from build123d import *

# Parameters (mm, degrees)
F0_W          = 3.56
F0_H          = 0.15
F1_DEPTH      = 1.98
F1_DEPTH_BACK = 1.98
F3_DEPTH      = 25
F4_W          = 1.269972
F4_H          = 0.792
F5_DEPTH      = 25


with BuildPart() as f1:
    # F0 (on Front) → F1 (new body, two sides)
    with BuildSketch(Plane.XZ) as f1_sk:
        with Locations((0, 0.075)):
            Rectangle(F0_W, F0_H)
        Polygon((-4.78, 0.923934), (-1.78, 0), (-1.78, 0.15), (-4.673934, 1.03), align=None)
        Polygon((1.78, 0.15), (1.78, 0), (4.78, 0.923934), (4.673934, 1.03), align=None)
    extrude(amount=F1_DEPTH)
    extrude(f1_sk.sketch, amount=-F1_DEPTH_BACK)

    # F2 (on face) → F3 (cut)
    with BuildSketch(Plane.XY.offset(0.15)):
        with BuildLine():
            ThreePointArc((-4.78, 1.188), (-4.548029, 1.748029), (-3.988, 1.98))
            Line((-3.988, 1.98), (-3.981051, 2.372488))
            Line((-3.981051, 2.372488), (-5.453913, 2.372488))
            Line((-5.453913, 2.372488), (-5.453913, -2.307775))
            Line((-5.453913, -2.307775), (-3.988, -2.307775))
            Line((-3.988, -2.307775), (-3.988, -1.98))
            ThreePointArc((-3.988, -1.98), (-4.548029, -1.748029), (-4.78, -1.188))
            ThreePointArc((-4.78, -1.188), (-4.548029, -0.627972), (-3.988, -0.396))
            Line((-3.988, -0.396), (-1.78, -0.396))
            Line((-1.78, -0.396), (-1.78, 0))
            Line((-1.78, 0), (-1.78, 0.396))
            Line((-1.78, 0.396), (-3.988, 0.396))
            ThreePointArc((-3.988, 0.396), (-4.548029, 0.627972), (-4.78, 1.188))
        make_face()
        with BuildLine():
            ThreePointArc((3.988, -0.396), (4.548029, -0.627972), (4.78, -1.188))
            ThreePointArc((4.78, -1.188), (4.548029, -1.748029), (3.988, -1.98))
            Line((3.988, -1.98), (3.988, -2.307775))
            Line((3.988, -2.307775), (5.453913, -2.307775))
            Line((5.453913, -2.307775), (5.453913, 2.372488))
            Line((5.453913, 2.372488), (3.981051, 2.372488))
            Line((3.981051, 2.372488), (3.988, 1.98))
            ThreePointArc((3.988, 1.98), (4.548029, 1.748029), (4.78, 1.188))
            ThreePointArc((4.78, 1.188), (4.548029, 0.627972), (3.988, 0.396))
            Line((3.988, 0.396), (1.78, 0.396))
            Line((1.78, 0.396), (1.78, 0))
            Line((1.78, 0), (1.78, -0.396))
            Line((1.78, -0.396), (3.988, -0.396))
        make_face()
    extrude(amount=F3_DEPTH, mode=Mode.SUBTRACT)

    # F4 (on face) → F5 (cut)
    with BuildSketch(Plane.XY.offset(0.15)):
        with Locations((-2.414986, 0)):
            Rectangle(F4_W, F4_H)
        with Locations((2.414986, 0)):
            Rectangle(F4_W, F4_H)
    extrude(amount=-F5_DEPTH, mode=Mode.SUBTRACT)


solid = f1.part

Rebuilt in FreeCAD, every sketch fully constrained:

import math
import FreeCAD as App
import Part
import Sketcher

V = App.Vector

doc = App.newDocument("Part")
params = doc.addObject("Spreadsheet::Sheet", "Params")
for row, (alias, value) in enumerate([
    ("sketch1_width", "3.56 mm"),
    ("sketch1_length", "0.15 mm"),
    ("pad1_length", "1.98 mm"),
    ("pad1_length2", "1.98 mm"),
    ("pocket1_length", "25 mm"),
    ("pocket2_length", "25 mm"),
], start=1):
    params.set(f"A{row}", alias)
    params.set(f"B{row}", "=" + value)
    params.setAlias(f"B{row}", alias)

body = doc.addObject("PartDesign::Body", "Body")

# Sketch on XZ plane
sketch1 = body.newObject("Sketcher::SketchObject", "Sketch")
sketch1.AttachmentSupport = (doc.getObject("XZ_Plane"), [""])
sketch1.MapMode = "FlatFace"
sketch1.addGeometry(Part.LineSegment(V(-1.78, 0, 0), V(1.78, 0, 0)), False)
sketch1.addGeometry(Part.LineSegment(V(1.78, 0, 0), V(4.78, 0.92, 0)), False)
sketch1.addGeometry(Part.LineSegment(V(4.78, 0.92, 0), V(4.67, 1.03, 0)), False)
sketch1.addGeometry(Part.LineSegment(V(4.67, 1.03, 0), V(1.78, 0.15, 0)), False)
sketch1.addGeometry(Part.LineSegment(V(1.78, 0.15, 0), V(-1.78, 0.15, 0)), False)
sketch1.addGeometry(Part.LineSegment(V(-1.78, 0.15, 0), V(-4.67, 1.03, 0)), False)
sketch1.addGeometry(Part.LineSegment(V(-4.67, 1.03, 0), V(-4.78, 0.92, 0)), False)
sketch1.addGeometry(Part.LineSegment(V(-4.78, 0.92, 0), V(-1.78, 0, 0)), False)
sketch1.addConstraint(Sketcher.Constraint("Coincident", 0, 2, 1, 1))
sketch1.addConstraint(Sketcher.Constraint("Coincident", 1, 2, 2, 1))
sketch1.addConstraint(Sketcher.Constraint("Coincident", 2, 2, 3, 1))
sketch1.addConstraint(Sketcher.Constraint("Coincident", 3, 2, 4, 1))
sketch1.addConstraint(Sketcher.Constraint("Coincident", 4, 2, 5, 1))
sketch1.addConstraint(Sketcher.Constraint("Coincident", 5, 2, 6, 1))
sketch1.addConstraint(Sketcher.Constraint("Coincident", 6, 2, 7, 1))
sketch1.addConstraint(Sketcher.Constraint("Coincident", 7, 2, 0, 1))
sketch1.addConstraint(Sketcher.Constraint("Horizontal", 0))
sketch1.addConstraint(Sketcher.Constraint("Horizontal", 4))
sketch1.addConstraint(Sketcher.Constraint("Symmetric", 0, 2, 7, 2, -1, 1))
sketch1.addConstraint(Sketcher.Constraint("Symmetric", 2, 2, 5, 2, -2))
sketch1.addConstraint(Sketcher.Constraint("Symmetric", 1, 2, 6, 2, -2))
sketch1.addConstraint(Sketcher.Constraint("Perpendicular", 2, 6))
sketch1.addConstraint(Sketcher.Constraint("Vertical", 0, 2, 3, 2))
sketch1.addConstraint(Sketcher.Constraint("Vertical", 4, 2, 7, 2))
sketch1.addConstraint(Sketcher.Constraint("DistanceX", 0, 2, 1, 2, 3.0))
sketch1.addConstraint(Sketcher.Constraint("DistanceX", 0, 1, 0, 2, 3.56))
sketch1.addConstraint(Sketcher.Constraint("Distance", 2, 0.15))
sketch1.addConstraint(Sketcher.Constraint("DistanceY", -1, 1, 2, 2, 1.03))
sketch1.addConstraint(Sketcher.Constraint("DistanceY", -1, 1, 3, 2, 0.15))
sketch1.setExpression("Constraints[17]", "Params.sketch1_width")
sketch1.setExpression("Constraints[18]", "Params.sketch1_length")
pad1 = body.newObject("PartDesign::Pad", "Pad")
pad1.Profile = sketch1
pad1.Type = "TwoLengths"
pad1.setExpression("Length", "Params.pad1_length")
pad1.setExpression("Length2", "Params.pad1_length2")

# Sketch on XY plane
sketch2 = body.newObject("Sketcher::SketchObject", "Sketch001")
sketch2.AttachmentSupport = (doc.getObject("XY_Plane"), [""])
sketch2.MapMode = "FlatFace"
sketch2.AttachmentOffset = App.Placement(V(0, 0, 0.15), App.Rotation())
sketch2.addGeometry(Part.ArcOfCircle(Part.Circle(V(-3.99, 1.19, 0), V(0, 0, 1), 0.79), math.radians(90), math.radians(180)), False)
sketch2.addGeometry(Part.LineSegment(V(-3.99, 1.98, 0), V(-3.98, 2.37, 0)), False)
sketch2.addGeometry(Part.LineSegment(V(-3.98, 2.37, 0), V(-5.45, 2.37, 0)), False)
sketch2.addGeometry(Part.LineSegment(V(-5.45, 2.37, 0), V(-5.45, -2.31, 0)), False)
sketch2.addGeometry(Part.LineSegment(V(-5.45, -2.31, 0), V(-3.99, -2.31, 0)), False)
sketch2.addGeometry(Part.LineSegment(V(-3.99, -2.31, 0), V(-3.99, -1.98, 0)), False)
sketch2.addGeometry(Part.ArcOfCircle(Part.Circle(V(-3.99, -1.19, 0), V(0, 0, 1), 0.79), math.radians(180), math.radians(270)), False)
sketch2.addGeometry(Part.ArcOfCircle(Part.Circle(V(-3.99, -1.19, 0), V(0, 0, 1), 0.79), math.radians(90), math.radians(180)), False)
sketch2.addGeometry(Part.LineSegment(V(-3.99, -0.4, 0), V(-1.78, -0.4, 0)), False)
sketch2.addGeometry(Part.LineSegment(V(-1.78, -0.4, 0), V(-1.78, 0.4, 0)), False)
sketch2.addGeometry(Part.LineSegment(V(-1.78, 0.4, 0), V(-3.99, 0.4, 0)), False)
sketch2.addGeometry(Part.ArcOfCircle(Part.Circle(V(-3.99, 1.19, 0), V(0, 0, 1), 0.79), math.radians(-180), math.radians(-90)), False)
sketch2.addGeometry(Part.ArcOfCircle(Part.Circle(V(3.99, -1.19, 0), V(0, 0, 1), 0.79), math.radians(0), math.radians(90)), False)
sketch2.addGeometry(Part.ArcOfCircle(Part.Circle(V(3.99, -1.19, 0), V(0, 0, 1), 0.79), math.radians(-90), math.radians(0)), False)
sketch2.addGeometry(Part.LineSegment(V(3.99, -1.98, 0), V(3.99, -2.31, 0)), False)
sketch2.addGeometry(Part.LineSegment(V(3.99, -2.31, 0), V(5.45, -2.31, 0)), False)
sketch2.addGeometry(Part.LineSegment(V(5.45, -2.31, 0), V(5.45, 2.37, 0)), False)
sketch2.addGeometry(Part.LineSegment(V(5.45, 2.37, 0), V(3.98, 2.37, 0)), False)
sketch2.addGeometry(Part.LineSegment(V(3.98, 2.37, 0), V(3.99, 1.98, 0)), False)
sketch2.addGeometry(Part.ArcOfCircle(Part.Circle(V(3.99, 1.19, 0), V(0, 0, 1), 0.79), math.radians(0), math.radians(90)), False)
sketch2.addGeometry(Part.ArcOfCircle(Part.Circle(V(3.99, 1.19, 0), V(0, 0, 1), 0.79), math.radians(-90), math.radians(0)), False)
sketch2.addGeometry(Part.LineSegment(V(3.99, 0.4, 0), V(1.78, 0.4, 0)), False)
sketch2.addGeometry(Part.LineSegment(V(1.78, 0.4, 0), V(1.78, -0.4, 0)), False)
sketch2.addGeometry(Part.LineSegment(V(1.78, -0.4, 0), V(3.99, -0.4, 0)), False)
sketch2.addConstraint(Sketcher.Constraint("Coincident", 0, 1, 1, 1))
sketch2.addConstraint(Sketcher.Constraint("Coincident", 1, 2, 2, 1))
sketch2.addConstraint(Sketcher.Constraint("Coincident", 2, 2, 3, 1))
sketch2.addConstraint(Sketcher.Constraint("Coincident", 3, 2, 4, 1))
sketch2.addConstraint(Sketcher.Constraint("Coincident", 4, 2, 5, 1))
sketch2.addConstraint(Sketcher.Constraint("Coincident", 5, 2, 6, 2))
sketch2.addConstraint(Sketcher.Constraint("Tangent", 6, 1, 7, 2))
sketch2.addConstraint(Sketcher.Constraint("Tangent", 7, 1, 8, 1))
sketch2.addConstraint(Sketcher.Constraint("Coincident", 8, 2, 9, 1))
sketch2.addConstraint(Sketcher.Constraint("Coincident", 9, 2, 10, 1))
sketch2.addConstraint(Sketcher.Constraint("Tangent", 10, 2, 11, 2))
sketch2.addConstraint(Sketcher.Constraint("Tangent", 11, 1, 0, 2))
sketch2.addConstraint(Sketcher.Constraint("Tangent", 12, 1, 13, 2))
sketch2.addConstraint(Sketcher.Constraint("Coincident", 13, 1, 14, 1))
sketch2.addConstraint(Sketcher.Constraint("Coincident", 14, 2, 15, 1))
sketch2.addConstraint(Sketcher.Constraint("Coincident", 15, 2, 16, 1))
sketch2.addConstraint(Sketcher.Constraint("Coincident", 16, 2, 17, 1))
sketch2.addConstraint(Sketcher.Constraint("Coincident", 17, 2, 18, 1))
sketch2.addConstraint(Sketcher.Constraint("Coincident", 18, 2, 19, 2))
sketch2.addConstraint(Sketcher.Constraint("Tangent", 19, 1, 20, 2))
sketch2.addConstraint(Sketcher.Constraint("Tangent", 20, 1, 21, 1))
sketch2.addConstraint(Sketcher.Constraint("Coincident", 21, 2, 22, 1))
sketch2.addConstraint(Sketcher.Constraint("Coincident", 22, 2, 23, 1))
sketch2.addConstraint(Sketcher.Constraint("Tangent", 23, 2, 12, 2))
sketch2.addConstraint(Sketcher.Constraint("Horizontal", 2))
sketch2.addConstraint(Sketcher.Constraint("Vertical", 3))
sketch2.addConstraint(Sketcher.Constraint("Horizontal", 4))
sketch2.addConstraint(Sketcher.Constraint("Vertical", 5))
sketch2.addConstraint(Sketcher.Constraint("Horizontal", 8))
sketch2.addConstraint(Sketcher.Constraint("Vertical", 9))
sketch2.addConstraint(Sketcher.Constraint("Horizontal", 10))
sketch2.addConstraint(Sketcher.Constraint("Vertical", 14))
sketch2.addConstraint(Sketcher.Constraint("Horizontal", 15))
sketch2.addConstraint(Sketcher.Constraint("Vertical", 16))
sketch2.addConstraint(Sketcher.Constraint("Horizontal", 17))
sketch2.addConstraint(Sketcher.Constraint("Horizontal", 21))
sketch2.addConstraint(Sketcher.Constraint("Vertical", 22))
sketch2.addConstraint(Sketcher.Constraint("Horizontal", 23))
sketch2.addConstraint(Sketcher.Constraint("Equal", 0, 6))
sketch2.addConstraint(Sketcher.Constraint("Equal", 6, 7))
sketch2.addConstraint(Sketcher.Constraint("Equal", 7, 11))
sketch2.addConstraint(Sketcher.Constraint("Equal", 11, 12))
sketch2.addConstraint(Sketcher.Constraint("Equal", 12, 13))
sketch2.addConstraint(Sketcher.Constraint("Equal", 13, 19))
sketch2.addConstraint(Sketcher.Constraint("Equal", 19, 20))
sketch2.addConstraint(Sketcher.Constraint("Symmetric", 0, 3, 12, 3, -1, 1))
sketch2.addConstraint(Sketcher.Constraint("Symmetric", 6, 3, 19, 3, -1, 1))
sketch2.addConstraint(Sketcher.Constraint("Symmetric", 6, 3, 12, 3, -2))
sketch2.addConstraint(Sketcher.Constraint("Symmetric", 4, 2, 14, 2, -2))
sketch2.addConstraint(Sketcher.Constraint("Symmetric", 2, 2, 16, 2, -2))
sketch2.addConstraint(Sketcher.Constraint("Horizontal", 13, 3, 6, 1))
sketch2.addConstraint(Sketcher.Constraint("Horizontal", 20, 3, 11, 1))
sketch2.addConstraint(Sketcher.Constraint("Horizontal", 6, 1, 12, 1))
sketch2.addConstraint(Sketcher.Constraint("Horizontal", 11, 1, 19, 1))
sketch2.addConstraint(Sketcher.Constraint("Vertical", 11, 3, 0, 1))
sketch2.addConstraint(Sketcher.Constraint("Vertical", 0, 1, 4, 2))
sketch2.addConstraint(Sketcher.Constraint("Vertical", 14, 2, 18, 2))
sketch2.addConstraint(Sketcher.Constraint("Equal", 2, 17))
sketch2.addConstraint(Sketcher.Constraint("Equal", 10, 21))
sketch2.addConstraint(Sketcher.Constraint("Radius", 0, 0.791999))
sketch2.addConstraint(Sketcher.Constraint("DistanceX", 8, 1, 8, 2, 2.208))
sketch2.addConstraint(Sketcher.Constraint("DistanceY", 9, 1, 9, 2, 0.792))
sketch2.addConstraint(Sketcher.Constraint("DistanceX", 6, 1, -1, 1, 4.78))
sketch2.addConstraint(Sketcher.Constraint("Distance", 1, 0.39255))
sketch2.addConstraint(Sketcher.Constraint("DistanceX", 2, 2, 2, 1, 1.472862))
sketch2.addConstraint(Sketcher.Constraint("DistanceX", 4, 1, 4, 2, 1.465913))
sketch2.addConstraint(Sketcher.Constraint("DistanceY", 3, 2, 3, 1, 4.680263))
pocket1 = body.newObject("PartDesign::Pocket", "Pocket")
pocket1.Profile = sketch2
pocket1.setExpression("Length", "Params.pocket1_length")
pocket1.Reversed = True

# Sketch on XY plane
sketch3 = body.newObject("Sketcher::SketchObject", "Sketch002")
sketch3.AttachmentSupport = (doc.getObject("XY_Plane"), [""])
sketch3.MapMode = "FlatFace"
sketch3.AttachmentOffset = App.Placement(V(0, 0, 0.15), App.Rotation())
sketch3.addGeometry(Part.LineSegment(V(-3, 0.4, 0), V(-3, -0.4, 0)), False)
sketch3.addGeometry(Part.LineSegment(V(-3, -0.4, 0), V(-1.8, -0.4, 0)), False)
sketch3.addGeometry(Part.LineSegment(V(-1.8, -0.4, 0), V(-1.8, 0.4, 0)), False)
sketch3.addGeometry(Part.LineSegment(V(-1.8, 0.4, 0), V(-3, 0.4, 0)), False)
sketch3.addGeometry(Part.LineSegment(V(1.8, 0.4, 0), V(1.8, -0.4, 0)), False)
sketch3.addGeometry(Part.LineSegment(V(1.8, -0.4, 0), V(3, -0.4, 0)), False)
sketch3.addGeometry(Part.LineSegment(V(3, -0.4, 0), V(3, 0.4, 0)), False)
sketch3.addGeometry(Part.LineSegment(V(3, 0.4, 0), V(1.8, 0.4, 0)), False)
sketch3.addConstraint(Sketcher.Constraint("Coincident", 0, 2, 1, 1))
sketch3.addConstraint(Sketcher.Constraint("Coincident", 1, 2, 2, 1))
sketch3.addConstraint(Sketcher.Constraint("Coincident", 2, 2, 3, 1))
sketch3.addConstraint(Sketcher.Constraint("Coincident", 3, 2, 0, 1))
sketch3.addConstraint(Sketcher.Constraint("Coincident", 4, 2, 5, 1))
sketch3.addConstraint(Sketcher.Constraint("Coincident", 5, 2, 6, 1))
sketch3.addConstraint(Sketcher.Constraint("Coincident", 6, 2, 7, 1))
sketch3.addConstraint(Sketcher.Constraint("Coincident", 7, 2, 4, 1))
sketch3.addConstraint(Sketcher.Constraint("Vertical", 0))
sketch3.addConstraint(Sketcher.Constraint("Horizontal", 1))
sketch3.addConstraint(Sketcher.Constraint("Vertical", 2))
sketch3.addConstraint(Sketcher.Constraint("Horizontal", 3))
sketch3.addConstraint(Sketcher.Constraint("Vertical", 4))
sketch3.addConstraint(Sketcher.Constraint("Horizontal", 5))
sketch3.addConstraint(Sketcher.Constraint("Vertical", 6))
sketch3.addConstraint(Sketcher.Constraint("Horizontal", 7))
sketch3.addConstraint(Sketcher.Constraint("Symmetric", 2, 2, 4, 2, -1, 1))
sketch3.addConstraint(Sketcher.Constraint("Symmetric", 0, 2, 6, 2, -1, 1))
sketch3.addConstraint(Sketcher.Constraint("Horizontal", 1, 2, 4, 2))
sketch3.addConstraint(Sketcher.Constraint("DistanceY", 0, 2, 0, 1, 0.792))
sketch3.addConstraint(Sketcher.Constraint("DistanceX", 1, 2, -1, 1, 1.78))
sketch3.addConstraint(Sketcher.Constraint("DistanceX", 1, 1, 1, 2, 1.269972))
pocket2 = body.newObject("PartDesign::Pocket", "Pocket001")
pocket2.Profile = sketch3
pocket2.setExpression("Length", "Params.pocket2_length")

doc.recompute()
